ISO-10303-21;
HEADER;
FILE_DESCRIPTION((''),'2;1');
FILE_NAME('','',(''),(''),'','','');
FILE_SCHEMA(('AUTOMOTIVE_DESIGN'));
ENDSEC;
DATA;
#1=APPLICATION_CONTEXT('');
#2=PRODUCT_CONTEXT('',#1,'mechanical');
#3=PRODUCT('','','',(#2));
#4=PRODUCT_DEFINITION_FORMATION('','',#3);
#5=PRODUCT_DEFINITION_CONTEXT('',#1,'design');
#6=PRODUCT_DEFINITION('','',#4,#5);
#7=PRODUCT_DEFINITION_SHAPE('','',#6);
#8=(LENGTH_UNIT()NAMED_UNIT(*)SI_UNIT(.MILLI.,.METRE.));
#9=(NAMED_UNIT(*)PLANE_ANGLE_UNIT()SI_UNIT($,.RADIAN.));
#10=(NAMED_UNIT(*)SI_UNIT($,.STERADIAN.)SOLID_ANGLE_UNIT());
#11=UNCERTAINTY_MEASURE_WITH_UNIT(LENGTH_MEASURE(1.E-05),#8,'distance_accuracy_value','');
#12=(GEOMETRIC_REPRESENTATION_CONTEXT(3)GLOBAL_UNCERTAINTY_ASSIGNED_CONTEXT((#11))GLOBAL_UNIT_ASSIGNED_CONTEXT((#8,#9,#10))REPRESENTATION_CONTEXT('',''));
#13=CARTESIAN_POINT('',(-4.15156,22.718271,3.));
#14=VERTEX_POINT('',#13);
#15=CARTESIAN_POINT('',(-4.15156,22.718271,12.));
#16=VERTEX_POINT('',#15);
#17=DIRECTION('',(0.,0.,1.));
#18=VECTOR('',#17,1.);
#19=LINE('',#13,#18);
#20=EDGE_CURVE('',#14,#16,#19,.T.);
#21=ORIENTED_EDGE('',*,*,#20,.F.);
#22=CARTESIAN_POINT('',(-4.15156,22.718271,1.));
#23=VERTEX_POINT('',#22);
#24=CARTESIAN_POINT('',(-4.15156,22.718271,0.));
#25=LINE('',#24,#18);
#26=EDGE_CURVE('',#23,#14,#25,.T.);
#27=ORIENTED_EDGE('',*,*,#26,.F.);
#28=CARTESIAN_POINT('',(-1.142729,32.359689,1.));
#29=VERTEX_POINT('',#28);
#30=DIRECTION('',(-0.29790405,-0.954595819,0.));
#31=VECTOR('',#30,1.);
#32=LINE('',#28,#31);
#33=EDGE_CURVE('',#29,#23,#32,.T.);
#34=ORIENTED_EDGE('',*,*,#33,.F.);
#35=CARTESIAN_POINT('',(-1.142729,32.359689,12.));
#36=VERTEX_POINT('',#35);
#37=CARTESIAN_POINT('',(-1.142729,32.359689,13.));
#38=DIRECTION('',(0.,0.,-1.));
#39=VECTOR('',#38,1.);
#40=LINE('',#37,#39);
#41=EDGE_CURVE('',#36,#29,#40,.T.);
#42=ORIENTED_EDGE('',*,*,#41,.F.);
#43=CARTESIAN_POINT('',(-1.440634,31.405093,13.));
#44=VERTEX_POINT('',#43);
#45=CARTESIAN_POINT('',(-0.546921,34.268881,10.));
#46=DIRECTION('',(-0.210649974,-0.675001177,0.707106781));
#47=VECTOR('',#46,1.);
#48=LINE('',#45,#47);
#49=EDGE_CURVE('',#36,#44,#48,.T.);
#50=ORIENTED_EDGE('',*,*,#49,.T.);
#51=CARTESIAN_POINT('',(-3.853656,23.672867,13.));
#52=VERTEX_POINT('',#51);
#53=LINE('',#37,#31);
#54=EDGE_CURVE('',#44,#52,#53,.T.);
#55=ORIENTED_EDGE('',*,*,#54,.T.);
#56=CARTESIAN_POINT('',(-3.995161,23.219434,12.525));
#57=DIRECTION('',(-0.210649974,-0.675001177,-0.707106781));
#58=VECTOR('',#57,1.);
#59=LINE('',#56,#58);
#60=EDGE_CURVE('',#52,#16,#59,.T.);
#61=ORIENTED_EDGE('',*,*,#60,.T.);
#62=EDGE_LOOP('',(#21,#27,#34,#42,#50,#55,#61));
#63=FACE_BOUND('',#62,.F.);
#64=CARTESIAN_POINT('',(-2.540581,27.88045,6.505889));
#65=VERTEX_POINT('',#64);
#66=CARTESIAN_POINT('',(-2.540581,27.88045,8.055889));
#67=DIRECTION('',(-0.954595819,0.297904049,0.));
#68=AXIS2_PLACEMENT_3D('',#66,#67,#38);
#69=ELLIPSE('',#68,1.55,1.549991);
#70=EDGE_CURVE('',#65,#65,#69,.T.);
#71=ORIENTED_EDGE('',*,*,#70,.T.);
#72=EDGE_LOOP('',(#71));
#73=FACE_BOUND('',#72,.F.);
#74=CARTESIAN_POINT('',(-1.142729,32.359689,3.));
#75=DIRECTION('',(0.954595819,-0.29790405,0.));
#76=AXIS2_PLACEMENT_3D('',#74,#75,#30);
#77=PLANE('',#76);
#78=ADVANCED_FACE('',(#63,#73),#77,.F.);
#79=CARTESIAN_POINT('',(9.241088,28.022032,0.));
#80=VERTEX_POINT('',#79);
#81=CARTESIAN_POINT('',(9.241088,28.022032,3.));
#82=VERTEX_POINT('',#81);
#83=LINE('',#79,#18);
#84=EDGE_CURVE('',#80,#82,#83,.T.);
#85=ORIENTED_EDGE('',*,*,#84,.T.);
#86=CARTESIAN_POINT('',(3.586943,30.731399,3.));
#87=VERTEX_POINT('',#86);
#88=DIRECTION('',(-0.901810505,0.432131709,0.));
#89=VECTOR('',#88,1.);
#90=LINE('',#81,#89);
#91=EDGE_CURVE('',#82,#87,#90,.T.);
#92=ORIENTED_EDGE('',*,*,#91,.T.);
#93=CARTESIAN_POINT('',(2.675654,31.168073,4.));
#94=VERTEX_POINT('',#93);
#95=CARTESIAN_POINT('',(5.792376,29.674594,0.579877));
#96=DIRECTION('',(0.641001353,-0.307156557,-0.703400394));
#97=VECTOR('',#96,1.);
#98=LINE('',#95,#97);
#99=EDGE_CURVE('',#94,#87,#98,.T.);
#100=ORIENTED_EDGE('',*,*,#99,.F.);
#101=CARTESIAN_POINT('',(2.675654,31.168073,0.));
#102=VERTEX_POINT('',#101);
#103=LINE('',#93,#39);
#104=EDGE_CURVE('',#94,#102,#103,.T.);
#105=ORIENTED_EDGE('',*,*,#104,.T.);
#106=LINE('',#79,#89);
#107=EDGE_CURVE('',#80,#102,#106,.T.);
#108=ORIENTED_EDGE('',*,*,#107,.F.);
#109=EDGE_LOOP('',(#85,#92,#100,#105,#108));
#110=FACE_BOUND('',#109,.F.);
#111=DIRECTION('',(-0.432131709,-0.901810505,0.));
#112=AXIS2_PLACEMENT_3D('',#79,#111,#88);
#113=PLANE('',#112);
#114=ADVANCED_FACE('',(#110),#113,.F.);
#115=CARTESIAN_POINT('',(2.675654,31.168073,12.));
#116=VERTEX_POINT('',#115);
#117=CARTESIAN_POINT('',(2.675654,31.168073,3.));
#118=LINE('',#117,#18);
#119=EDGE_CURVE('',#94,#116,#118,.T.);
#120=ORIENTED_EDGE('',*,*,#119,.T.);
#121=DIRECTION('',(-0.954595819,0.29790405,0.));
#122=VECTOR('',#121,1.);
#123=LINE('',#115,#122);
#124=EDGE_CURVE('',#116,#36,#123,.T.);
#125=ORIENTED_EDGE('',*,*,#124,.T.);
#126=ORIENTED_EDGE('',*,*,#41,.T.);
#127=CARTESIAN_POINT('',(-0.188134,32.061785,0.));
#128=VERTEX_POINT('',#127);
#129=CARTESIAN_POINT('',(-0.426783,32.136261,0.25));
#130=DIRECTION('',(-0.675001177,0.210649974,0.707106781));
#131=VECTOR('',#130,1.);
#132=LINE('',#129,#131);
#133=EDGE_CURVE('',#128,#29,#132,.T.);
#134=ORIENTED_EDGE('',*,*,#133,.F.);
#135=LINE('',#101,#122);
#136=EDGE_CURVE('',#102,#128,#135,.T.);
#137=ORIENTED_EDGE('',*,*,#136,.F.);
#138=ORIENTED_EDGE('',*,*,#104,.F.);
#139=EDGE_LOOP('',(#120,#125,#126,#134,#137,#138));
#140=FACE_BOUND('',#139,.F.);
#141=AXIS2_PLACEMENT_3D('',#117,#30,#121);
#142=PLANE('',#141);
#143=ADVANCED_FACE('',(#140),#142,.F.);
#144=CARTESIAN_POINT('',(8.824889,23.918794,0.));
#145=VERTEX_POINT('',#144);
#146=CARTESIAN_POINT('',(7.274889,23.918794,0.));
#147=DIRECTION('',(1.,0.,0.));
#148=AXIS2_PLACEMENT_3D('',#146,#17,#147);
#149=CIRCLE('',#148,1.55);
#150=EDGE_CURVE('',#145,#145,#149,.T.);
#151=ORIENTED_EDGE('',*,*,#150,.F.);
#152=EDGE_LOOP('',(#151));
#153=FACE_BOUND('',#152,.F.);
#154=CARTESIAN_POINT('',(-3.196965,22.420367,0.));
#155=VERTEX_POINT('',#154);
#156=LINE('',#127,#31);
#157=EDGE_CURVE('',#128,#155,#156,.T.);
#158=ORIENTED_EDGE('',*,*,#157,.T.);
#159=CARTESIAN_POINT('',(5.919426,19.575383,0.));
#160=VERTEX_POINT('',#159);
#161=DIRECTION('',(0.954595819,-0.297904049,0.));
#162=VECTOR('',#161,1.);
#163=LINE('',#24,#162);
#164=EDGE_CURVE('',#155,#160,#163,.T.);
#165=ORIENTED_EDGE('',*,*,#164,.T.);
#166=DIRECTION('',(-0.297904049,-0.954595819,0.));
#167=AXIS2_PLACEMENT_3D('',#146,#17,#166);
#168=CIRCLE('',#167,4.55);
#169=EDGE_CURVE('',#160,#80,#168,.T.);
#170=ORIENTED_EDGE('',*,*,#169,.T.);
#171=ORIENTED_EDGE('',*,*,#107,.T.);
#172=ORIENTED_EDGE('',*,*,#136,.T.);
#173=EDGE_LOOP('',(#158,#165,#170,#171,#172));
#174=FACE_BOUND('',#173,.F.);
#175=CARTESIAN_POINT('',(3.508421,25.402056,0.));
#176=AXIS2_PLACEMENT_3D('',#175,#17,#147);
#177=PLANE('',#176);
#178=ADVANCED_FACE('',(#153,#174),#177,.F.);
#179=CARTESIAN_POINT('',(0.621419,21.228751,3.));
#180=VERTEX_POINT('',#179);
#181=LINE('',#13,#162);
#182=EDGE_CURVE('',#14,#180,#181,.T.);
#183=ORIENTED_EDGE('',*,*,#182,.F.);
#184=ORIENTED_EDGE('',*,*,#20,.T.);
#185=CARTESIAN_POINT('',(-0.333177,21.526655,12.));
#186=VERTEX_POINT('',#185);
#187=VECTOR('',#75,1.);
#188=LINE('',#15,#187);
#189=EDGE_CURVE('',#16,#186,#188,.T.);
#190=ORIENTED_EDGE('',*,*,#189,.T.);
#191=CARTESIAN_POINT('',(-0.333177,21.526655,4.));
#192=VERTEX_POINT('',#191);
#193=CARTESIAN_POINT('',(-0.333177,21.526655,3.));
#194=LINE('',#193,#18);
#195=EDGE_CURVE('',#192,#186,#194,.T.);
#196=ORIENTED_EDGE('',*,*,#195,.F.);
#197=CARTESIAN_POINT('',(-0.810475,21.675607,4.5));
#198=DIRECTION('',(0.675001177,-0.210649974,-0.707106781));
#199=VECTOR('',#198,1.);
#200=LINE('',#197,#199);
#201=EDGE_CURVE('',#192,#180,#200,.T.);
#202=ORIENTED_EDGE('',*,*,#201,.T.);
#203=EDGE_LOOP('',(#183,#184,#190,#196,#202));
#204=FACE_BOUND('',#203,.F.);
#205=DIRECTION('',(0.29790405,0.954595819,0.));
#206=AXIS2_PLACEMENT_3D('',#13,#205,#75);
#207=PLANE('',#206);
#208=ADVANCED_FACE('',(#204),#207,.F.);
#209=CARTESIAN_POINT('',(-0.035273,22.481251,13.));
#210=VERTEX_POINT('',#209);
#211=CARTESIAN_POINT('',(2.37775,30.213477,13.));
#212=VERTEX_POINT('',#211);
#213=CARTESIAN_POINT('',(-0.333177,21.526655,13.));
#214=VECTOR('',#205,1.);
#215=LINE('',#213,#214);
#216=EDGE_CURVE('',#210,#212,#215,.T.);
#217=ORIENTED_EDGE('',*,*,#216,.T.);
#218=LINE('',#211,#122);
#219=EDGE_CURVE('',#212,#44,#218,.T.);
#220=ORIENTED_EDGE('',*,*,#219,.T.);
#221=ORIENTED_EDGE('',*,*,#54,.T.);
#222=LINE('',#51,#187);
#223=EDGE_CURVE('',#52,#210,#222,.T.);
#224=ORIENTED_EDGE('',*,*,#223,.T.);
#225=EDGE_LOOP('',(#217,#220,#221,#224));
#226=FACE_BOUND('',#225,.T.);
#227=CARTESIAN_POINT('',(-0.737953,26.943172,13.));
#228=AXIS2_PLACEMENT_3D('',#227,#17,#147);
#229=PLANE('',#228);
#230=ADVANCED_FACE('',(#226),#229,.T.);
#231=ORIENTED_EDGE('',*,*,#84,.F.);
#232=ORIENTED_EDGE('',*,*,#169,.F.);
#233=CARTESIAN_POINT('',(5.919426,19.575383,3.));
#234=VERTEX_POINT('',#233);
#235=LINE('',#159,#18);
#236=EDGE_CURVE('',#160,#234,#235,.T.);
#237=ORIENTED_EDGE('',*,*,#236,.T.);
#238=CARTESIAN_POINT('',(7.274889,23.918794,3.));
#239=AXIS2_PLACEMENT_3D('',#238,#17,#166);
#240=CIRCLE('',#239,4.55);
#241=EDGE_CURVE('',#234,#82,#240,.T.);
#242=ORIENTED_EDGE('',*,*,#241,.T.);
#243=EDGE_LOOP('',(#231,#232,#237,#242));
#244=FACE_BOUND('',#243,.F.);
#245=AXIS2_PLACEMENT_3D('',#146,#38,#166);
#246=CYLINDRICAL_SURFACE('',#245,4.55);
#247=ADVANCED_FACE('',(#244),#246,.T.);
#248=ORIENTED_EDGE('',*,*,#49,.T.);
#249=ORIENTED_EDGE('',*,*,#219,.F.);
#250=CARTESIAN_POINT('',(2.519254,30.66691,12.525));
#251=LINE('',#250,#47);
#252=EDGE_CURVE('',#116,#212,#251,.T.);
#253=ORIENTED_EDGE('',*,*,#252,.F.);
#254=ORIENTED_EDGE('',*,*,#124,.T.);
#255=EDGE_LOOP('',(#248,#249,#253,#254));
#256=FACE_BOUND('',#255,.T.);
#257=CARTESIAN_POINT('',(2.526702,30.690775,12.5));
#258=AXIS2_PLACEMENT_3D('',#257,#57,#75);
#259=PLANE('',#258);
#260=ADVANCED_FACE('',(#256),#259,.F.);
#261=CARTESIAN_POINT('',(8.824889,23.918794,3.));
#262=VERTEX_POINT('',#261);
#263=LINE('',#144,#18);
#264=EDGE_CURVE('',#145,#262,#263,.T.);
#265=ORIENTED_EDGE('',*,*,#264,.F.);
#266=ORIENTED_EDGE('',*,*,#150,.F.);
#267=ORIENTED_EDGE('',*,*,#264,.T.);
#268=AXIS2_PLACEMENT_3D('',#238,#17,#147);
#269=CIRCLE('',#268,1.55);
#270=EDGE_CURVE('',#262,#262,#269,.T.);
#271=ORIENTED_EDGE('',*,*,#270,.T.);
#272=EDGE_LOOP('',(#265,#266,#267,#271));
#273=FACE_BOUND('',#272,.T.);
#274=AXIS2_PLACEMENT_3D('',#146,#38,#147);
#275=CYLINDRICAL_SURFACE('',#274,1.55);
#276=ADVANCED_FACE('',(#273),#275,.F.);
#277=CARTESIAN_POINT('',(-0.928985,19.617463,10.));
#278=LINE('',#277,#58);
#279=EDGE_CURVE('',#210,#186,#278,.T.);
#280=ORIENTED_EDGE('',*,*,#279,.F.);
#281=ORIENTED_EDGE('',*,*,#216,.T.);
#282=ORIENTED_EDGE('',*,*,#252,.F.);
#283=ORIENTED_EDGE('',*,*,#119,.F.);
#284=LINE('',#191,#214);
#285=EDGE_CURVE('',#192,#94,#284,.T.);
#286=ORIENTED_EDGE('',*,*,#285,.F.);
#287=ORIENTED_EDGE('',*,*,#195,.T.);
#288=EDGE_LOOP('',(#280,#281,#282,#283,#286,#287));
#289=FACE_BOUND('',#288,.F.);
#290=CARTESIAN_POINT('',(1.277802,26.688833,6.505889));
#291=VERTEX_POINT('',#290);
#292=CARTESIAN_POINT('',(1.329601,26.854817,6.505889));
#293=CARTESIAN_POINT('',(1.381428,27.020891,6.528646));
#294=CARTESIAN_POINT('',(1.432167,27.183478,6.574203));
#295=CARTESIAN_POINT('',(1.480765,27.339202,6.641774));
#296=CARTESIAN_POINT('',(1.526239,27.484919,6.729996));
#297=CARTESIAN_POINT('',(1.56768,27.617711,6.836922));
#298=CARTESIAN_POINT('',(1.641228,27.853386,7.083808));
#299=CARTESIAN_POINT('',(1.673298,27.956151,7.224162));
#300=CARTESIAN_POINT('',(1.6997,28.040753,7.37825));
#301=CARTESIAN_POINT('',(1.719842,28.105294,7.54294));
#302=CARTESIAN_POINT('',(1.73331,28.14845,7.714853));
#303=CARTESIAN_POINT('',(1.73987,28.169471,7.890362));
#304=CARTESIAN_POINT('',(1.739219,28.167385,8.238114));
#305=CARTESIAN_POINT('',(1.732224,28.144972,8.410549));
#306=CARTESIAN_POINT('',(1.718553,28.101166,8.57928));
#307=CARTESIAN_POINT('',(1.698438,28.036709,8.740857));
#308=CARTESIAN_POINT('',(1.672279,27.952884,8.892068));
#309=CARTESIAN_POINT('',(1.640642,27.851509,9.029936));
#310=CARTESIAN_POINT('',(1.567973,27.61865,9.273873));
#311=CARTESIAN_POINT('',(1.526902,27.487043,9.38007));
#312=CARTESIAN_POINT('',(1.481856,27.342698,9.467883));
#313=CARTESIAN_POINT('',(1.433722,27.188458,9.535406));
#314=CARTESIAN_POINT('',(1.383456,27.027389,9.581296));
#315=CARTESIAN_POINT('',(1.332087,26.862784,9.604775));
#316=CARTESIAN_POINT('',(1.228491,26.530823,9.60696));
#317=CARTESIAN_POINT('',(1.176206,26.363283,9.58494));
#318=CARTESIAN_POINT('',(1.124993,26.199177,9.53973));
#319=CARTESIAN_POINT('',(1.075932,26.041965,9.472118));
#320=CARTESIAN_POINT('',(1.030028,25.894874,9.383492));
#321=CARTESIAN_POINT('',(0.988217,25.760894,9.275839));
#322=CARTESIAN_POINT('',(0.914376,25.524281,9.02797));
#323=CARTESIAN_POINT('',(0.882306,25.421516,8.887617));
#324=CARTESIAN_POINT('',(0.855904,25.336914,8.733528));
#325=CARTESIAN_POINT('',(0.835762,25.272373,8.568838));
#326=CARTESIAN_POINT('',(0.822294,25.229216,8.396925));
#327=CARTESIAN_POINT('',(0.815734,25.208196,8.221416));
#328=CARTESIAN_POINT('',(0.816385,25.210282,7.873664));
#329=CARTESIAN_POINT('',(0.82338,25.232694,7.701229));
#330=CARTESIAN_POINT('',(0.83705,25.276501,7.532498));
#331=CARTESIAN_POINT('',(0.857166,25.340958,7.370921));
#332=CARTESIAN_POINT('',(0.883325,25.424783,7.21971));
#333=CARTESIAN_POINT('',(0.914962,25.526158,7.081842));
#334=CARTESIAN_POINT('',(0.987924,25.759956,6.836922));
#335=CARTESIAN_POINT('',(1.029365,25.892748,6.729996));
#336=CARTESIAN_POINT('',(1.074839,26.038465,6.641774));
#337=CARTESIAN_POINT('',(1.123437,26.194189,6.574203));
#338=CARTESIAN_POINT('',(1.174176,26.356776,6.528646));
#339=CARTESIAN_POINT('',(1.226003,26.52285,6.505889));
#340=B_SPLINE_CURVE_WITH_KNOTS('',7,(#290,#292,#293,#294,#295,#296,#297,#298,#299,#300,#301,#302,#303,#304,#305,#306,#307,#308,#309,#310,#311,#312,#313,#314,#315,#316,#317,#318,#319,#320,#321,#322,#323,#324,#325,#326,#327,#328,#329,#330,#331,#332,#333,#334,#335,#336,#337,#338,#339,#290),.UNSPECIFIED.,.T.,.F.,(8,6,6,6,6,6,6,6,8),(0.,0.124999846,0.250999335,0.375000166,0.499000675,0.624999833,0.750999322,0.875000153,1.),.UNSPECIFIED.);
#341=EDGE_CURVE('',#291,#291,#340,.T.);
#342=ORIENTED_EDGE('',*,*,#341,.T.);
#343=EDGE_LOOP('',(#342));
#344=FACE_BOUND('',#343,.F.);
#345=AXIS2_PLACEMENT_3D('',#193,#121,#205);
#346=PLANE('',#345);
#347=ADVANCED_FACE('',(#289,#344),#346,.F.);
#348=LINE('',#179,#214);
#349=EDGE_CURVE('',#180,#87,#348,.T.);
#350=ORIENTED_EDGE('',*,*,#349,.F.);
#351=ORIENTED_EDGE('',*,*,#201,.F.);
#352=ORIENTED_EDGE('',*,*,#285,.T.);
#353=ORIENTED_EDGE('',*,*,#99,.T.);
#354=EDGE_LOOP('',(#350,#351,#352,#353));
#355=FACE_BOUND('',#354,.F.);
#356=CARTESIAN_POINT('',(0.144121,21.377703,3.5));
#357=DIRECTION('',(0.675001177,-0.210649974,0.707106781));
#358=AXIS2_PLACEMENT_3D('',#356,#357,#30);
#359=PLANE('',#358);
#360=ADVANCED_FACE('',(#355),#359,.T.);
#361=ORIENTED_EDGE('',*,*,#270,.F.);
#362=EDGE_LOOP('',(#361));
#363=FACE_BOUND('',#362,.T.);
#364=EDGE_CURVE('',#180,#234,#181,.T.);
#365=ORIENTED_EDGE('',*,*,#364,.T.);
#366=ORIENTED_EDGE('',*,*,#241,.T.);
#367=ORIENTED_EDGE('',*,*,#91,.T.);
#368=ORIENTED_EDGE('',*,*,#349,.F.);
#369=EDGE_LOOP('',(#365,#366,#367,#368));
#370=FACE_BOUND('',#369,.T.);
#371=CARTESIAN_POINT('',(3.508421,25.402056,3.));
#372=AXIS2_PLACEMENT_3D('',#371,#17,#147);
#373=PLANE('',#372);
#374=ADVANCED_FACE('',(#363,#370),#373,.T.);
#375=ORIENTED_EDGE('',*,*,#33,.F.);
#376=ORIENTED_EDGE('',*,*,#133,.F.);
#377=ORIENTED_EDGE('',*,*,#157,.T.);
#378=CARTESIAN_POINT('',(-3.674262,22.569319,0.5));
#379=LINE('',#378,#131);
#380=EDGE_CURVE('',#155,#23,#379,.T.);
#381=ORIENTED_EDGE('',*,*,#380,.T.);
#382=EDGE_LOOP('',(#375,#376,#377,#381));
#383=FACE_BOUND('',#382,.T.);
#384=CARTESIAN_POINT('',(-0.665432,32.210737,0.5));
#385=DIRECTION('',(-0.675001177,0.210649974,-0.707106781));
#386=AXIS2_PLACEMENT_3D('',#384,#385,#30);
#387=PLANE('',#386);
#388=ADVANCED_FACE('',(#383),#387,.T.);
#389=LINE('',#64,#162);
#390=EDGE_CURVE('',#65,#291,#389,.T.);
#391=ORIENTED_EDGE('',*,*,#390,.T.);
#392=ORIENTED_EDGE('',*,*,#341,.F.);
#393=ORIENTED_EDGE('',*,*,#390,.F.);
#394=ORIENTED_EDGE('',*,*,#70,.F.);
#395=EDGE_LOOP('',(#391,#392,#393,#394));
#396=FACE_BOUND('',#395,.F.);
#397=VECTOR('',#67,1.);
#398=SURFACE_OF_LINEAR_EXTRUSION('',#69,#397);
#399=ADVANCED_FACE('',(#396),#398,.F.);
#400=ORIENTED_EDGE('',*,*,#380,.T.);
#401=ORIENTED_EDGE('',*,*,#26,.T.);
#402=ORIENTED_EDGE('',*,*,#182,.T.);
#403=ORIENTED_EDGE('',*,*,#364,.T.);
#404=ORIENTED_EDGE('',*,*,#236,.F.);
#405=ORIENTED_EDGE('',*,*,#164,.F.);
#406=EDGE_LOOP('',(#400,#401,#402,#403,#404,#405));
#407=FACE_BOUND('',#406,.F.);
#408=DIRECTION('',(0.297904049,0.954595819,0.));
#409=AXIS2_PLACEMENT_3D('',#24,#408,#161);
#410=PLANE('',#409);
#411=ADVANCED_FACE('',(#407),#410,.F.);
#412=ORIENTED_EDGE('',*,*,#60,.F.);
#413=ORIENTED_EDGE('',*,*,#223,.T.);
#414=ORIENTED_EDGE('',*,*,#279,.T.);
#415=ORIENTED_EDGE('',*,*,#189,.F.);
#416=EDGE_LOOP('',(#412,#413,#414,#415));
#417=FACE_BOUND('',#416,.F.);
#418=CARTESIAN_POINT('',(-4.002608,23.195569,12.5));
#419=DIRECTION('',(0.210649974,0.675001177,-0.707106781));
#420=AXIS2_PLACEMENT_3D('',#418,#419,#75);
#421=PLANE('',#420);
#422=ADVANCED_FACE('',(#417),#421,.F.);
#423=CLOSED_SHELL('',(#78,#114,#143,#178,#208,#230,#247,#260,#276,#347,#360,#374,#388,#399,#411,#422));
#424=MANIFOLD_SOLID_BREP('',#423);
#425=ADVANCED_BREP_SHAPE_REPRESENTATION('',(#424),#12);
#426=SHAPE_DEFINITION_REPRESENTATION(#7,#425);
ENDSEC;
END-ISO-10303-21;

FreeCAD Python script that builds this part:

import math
import FreeCAD as App
import Part
import Sketcher
from FreeCAD import Vector
Q = App.Units.Quantity


def edges_at(feature, points):
    """Names of the edges that pass closest to the given points."""
    edges = feature.Shape.Edges
    near = lambda p: min(range(len(edges)), key=lambda i: edges[i].distToShape(Part.Vertex(*p))[0])
    return sorted({f"Edge{near(p) + 1}" for p in points})

doc = App.newDocument("Part")
body = doc.addObject("PartDesign::Body", "Body")

sketch1 = body.newObject("Sketcher::SketchObject", "Sketch")
sketch1.AttachmentSupport = (doc.getObject("XY_Plane"), [""])
sketch1.MapMode = "FlatFace"
sketch1.addGeometry(Part.LineSegment(Vector(9.241088, 28.022032, 0), Vector(2.675654, 31.168073, 0)), False)
sketch1.addGeometry(Part.LineSegment(Vector(2.675654, 31.168073, 0), Vector(-1.142729, 32.359689, 0)), False)
sketch1.addGeometry(Part.LineSegment(Vector(-1.142729, 32.359689, 0), Vector(-4.15156, 22.718271, 0)), False)
sketch1.addGeometry(Part.LineSegment(Vector(-4.15156, 22.718271, 0), Vector(5.919426, 19.575383, 0)), False)
sketch1.addGeometry(Part.ArcOfCircle(Part.Circle(Vector(7.274889, 23.918794, 0), Vector(0, 0, 1), 4.55), math.radians(-107.331759), math.radians(64.39708)), False)
sketch1.addGeometry(Part.Circle(Vector(7.274889, 23.918794, 0), Vector(0, 0, 1), 1.55), False)
sketch1.addConstraint(Sketcher.Constraint("Coincident", 0, 2, 1, 1))
sketch1.addConstraint(Sketcher.Constraint("Coincident", 1, 2, 2, 1))
sketch1.addConstraint(Sketcher.Constraint("Coincident", 2, 2, 3, 1))
sketch1.addConstraint(Sketcher.Constraint("Tangent", 3, 2, 4, 1))
sketch1.addConstraint(Sketcher.Constraint("Tangent", 4, 2, 0, 1))
sketch1.addConstraint(Sketcher.Constraint("Coincident", 5, 3, 4, 3))
sketch1.addConstraint(Sketcher.Constraint("Perpendicular", 1, 2))
sketch1.addConstraint(Sketcher.Constraint("Perpendicular", 2, 3))
sketch1.addConstraint(Sketcher.Constraint("Diameter", 5, Q("3.1 mm")))
sketch1.addConstraint(Sketcher.Constraint("Radius", 4, Q("4.55 mm")))
sketch1.addConstraint(Sketcher.Constraint("Distance", 1, Q("4 mm")))
sketch1.addConstraint(Sketcher.Constraint("Distance", 2, Q("10.1 mm")))
sketch1.addConstraint(Sketcher.Constraint("Distance", 3, Q("10.55 mm")))
sketch1.addConstraint(Sketcher.Constraint("DistanceY", 2, 2, 0, 2, Q("8.449802 mm")))
sketch1.addConstraint(Sketcher.Constraint("DistanceX", -1, 1, 4, 3, Q("7.274889 mm")))
sketch1.addConstraint(Sketcher.Constraint("DistanceY", -1, 1, 1, 2, Q("32.359689 mm")))
pad1 = body.newObject("PartDesign::Pad", "Pad")
pad1.Profile = sketch1
pad1.Length = 3

sketch2 = body.newObject("Sketcher::SketchObject", "Sketch001")
sketch2.AttachmentSupport = (doc.getObject("XY_Plane"), [""])
sketch2.MapMode = "FlatFace"
sketch2.AttachmentOffset = App.Placement(Vector(0, 0, 3), App.Rotation())
sketch2.addGeometry(Part.LineSegment(Vector(-1.142729, 32.359689, 0), Vector(-4.15156, 22.718271, 0)), False)
sketch2.addGeometry(Part.LineSegment(Vector(-4.15156, 22.718271, 0), Vector(-0.333177, 21.526655, 0)), False)
sketch2.addGeometry(Part.LineSegment(Vector(-0.333177, 21.526655, 0), Vector(2.675654, 31.168073, 0)), False)
sketch2.addGeometry(Part.LineSegment(Vector(2.675654, 31.168073, 0), Vector(-1.142729, 32.359689, 0)), False)
sketch2.addConstraint(Sketcher.Constraint("Coincident", 0, 2, 1, 1))
sketch2.addConstraint(Sketcher.Constraint("Coincident", 1, 2, 2, 1))
sketch2.addConstraint(Sketcher.Constraint("Coincident", 2, 2, 3, 1))
sketch2.addConstraint(Sketcher.Constraint("Coincident", 3, 2, 0, 1))
sketch2.addConstraint(Sketcher.Constraint("Perpendicular", 0, 1))
sketch2.addConstraint(Sketcher.Constraint("Perpendicular", 1, 2))
sketch2.addConstraint(Sketcher.Constraint("Perpendicular", 2, 3))
sketch2.addConstraint(Sketcher.Constraint("Distance", 1, Q("4 mm")))
sketch2.addConstraint(Sketcher.Constraint("Distance", 0, Q("10.1 mm")))
sketch2.addConstraint(Sketcher.Constraint("DistanceY", 0, 2, 2, 2, Q("8.449802 mm")))
sketch2.addConstraint(Sketcher.Constraint("DistanceX", 0, 2, -1, 1, Q("4.15156 mm")))
sketch2.addConstraint(Sketcher.Constraint("DistanceY", -1, 1, 0, 2, Q("22.718271 mm")))
pad2 = body.newObject("PartDesign::Pad", "Pad001")
pad2.Profile = sketch2
pad2.Length = 10

sketch3 = body.newObject("Sketcher::SketchObject", "Sketch002")
sketch3.Placement = App.Placement(Vector(-10.243698, 3.196787, 0), App.Rotation(Vector(0, 0, 1), Vector(0.297904049, 0.954595819, 0), Vector(-0.954595819, 0.297904049, 0), "ZXY"))
sketch3.addGeometry(Part.Ellipse(Vector(6.505889, 25.857711, 0), Vector(8.055889, 24.30772, 0), Vector(8.055889, 25.857711, 0)), False)
sketch3.addConstraint(Sketcher.Constraint("Block", 0))
pocket1 = body.newObject("PartDesign::Pocket", "Pocket")
pocket1.Profile = sketch3
pocket1.Type = "UpToFirst"
doc.recompute()

chamfer = body.newObject("PartDesign::Chamfer", "Chamfer")
chamfer.Base = (pocket1, edges_at(pocket1, [(-2.242, 22.122, 13), (0.766, 31.764, 13)]))
chamfer.Size = 1
doc.recompute()

chamfer2 = body.newObject("PartDesign::Chamfer", "Chamfer001")
chamfer2.Base = (chamfer, edges_at(chamfer, [(1.171, 26.347, 3)]))
chamfer2.Size = 1
doc.recompute()

chamfer3 = body.newObject("PartDesign::Chamfer", "Chamfer002")
chamfer3.Base = (chamfer2, edges_at(chamfer2, [(-2.647, 27.539, 0)]))
chamfer3.Size = 1

doc.recompute()
